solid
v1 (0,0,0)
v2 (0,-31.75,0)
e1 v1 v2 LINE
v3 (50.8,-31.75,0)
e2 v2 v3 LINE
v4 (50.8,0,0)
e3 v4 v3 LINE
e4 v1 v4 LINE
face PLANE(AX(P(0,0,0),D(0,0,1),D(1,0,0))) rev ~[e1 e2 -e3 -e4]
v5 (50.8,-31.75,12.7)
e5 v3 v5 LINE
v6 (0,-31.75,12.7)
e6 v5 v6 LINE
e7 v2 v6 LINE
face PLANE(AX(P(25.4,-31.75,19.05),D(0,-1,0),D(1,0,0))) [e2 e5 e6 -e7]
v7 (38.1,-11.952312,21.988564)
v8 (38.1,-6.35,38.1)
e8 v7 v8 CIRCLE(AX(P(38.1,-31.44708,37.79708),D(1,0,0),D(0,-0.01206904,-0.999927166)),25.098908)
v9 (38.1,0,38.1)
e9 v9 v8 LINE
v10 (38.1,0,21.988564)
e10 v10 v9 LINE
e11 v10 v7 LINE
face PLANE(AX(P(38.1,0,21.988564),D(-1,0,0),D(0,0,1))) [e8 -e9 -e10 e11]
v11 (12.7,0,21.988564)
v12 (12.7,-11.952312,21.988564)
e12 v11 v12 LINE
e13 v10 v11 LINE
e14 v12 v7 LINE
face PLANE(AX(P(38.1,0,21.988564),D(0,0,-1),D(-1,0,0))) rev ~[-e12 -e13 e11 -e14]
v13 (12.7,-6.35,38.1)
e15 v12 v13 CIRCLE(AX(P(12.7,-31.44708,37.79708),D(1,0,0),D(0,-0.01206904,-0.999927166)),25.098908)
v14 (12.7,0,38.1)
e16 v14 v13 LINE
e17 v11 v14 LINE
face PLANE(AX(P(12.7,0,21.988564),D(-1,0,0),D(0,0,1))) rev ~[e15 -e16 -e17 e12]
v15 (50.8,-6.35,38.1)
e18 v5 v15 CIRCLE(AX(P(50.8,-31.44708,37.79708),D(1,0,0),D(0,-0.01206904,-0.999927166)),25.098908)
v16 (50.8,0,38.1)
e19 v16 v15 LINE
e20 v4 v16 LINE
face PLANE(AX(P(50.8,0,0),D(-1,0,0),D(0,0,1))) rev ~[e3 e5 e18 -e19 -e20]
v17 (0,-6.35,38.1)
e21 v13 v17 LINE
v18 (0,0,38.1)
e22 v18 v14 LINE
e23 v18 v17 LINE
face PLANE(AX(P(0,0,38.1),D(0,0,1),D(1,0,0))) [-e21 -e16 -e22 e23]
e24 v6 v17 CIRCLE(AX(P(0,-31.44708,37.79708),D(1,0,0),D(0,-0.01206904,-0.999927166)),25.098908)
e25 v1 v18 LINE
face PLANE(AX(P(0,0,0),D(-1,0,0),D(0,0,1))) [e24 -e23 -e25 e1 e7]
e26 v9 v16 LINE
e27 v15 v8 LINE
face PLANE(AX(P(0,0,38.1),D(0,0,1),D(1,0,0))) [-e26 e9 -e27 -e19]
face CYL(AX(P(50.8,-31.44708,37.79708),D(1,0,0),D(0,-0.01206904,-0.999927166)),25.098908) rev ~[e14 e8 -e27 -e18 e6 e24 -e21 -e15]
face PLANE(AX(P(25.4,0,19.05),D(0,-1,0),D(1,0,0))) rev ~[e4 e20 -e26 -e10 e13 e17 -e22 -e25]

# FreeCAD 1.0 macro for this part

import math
import FreeCAD as App
import Part
import Sketcher
Q = App.Units.Quantity


def add_polygon(sketch, points):
    """Adds a closed chain of lines whose ends are joined by coincident constraints."""
    first, n = sketch.GeometryCount, len(points)
    for a, b in zip(points, points[1:] + points[:1]):
        sketch.addGeometry(Part.LineSegment(App.Vector(*a, 0), App.Vector(*b, 0)), False)
    for i in range(n):
        sketch.addConstraint(Sketcher.Constraint("Coincident", first + i, 2, first + (i + 1) % n, 1))

doc = App.newDocument("Part")
body = doc.addObject("PartDesign::Body", "Body")

# Sketch on XZ plane
sketch1 = doc.addObject("Sketcher::SketchObject", "Sketch")
body.addObject(sketch1)
sketch1.AttachmentSupport = (doc.XZ_Plane, [""])
sketch1.MapMode = "FlatFace"
add_polygon(sketch1, [(0, 38), (0, 0), (51, 0), (51, 38)])  # lines 0-3
sketch1.addConstraint([
    Sketcher.Constraint("Vertical", 0),
    Sketcher.Constraint("Horizontal", 1),
    Sketcher.Constraint("Vertical", 2),
    Sketcher.Constraint("Horizontal", 3),
    Sketcher.Constraint("Coincident", 0, 2, -1, 1),
    Sketcher.Constraint("DistanceX", 1, 1, 1, 2, Q("2 in")),
    Sketcher.Constraint("DistanceY", 0, 2, 0, 1, Q("1.5 in")),
])
pad1 = doc.addObject("PartDesign::Pad", "Pad")
body.addObject(pad1)
pad1.Profile = sketch1
pad1.Length = Q("1.25 in")

# Sketch on XZ plane
sketch2 = doc.addObject("Sketcher::SketchObject", "Sketch001")
body.addObject(sketch2)
sketch2.AttachmentSupport = (doc.XZ_Plane, [""])
sketch2.MapMode = "FlatFace"
add_polygon(sketch2, [(38, 38), (38, 22), (13, 22), (13, 38)])  # lines 0-3
sketch2.addConstraint([
    Sketcher.Constraint("Vertical", 0),
    Sketcher.Constraint("Horizontal", 1),
    Sketcher.Constraint("Vertical", 2),
    Sketcher.Constraint("Horizontal", 3),
    Sketcher.Constraint("DistanceX", 1, 2, 1, 1, Q("1 in")),
    Sketcher.Constraint("DistanceX", -1, 1, 0, 2, Q("1.5 in")),
    Sketcher.Constraint("DistanceY", -1, 1, 2, 2, Q("1.5 in")),
    Sketcher.Constraint("DistanceY", 0, 2, 0, 1, 16.111437),
])
pocket1 = doc.addObject("PartDesign::Pocket", "Pocket")
body.addObject(pocket1)
pocket1.Profile = sketch2
pocket1.Length = Q("0.5 in")
pocket1.Reversed = True

# Sketch on YZ plane
sketch3 = doc.addObject("Sketcher::SketchObject", "Sketch002")
body.addObject(sketch3)
sketch3.AttachmentSupport = (doc.YZ_Plane, [""])
sketch3.MapMode = "FlatFace"
sketch3.AttachmentOffset = App.Placement(App.Vector(0, 0, 2 * 25.4), App.Rotation())
sketch3.addGeometry([
    Part.LineSegment(App.Vector(-32, 38, 0), App.Vector(-32, 13, 0)),
    Part.ArcOfCircle(Part.Circle(App.Vector(-31, 38, 0), App.Vector(0, 0, 1), 25), math.radians(-91), math.radians(1)),
    Part.LineSegment(App.Vector(-6, 38, 0), App.Vector(-32, 38, 0)),
], False)
sketch3.addConstraint([
    Sketcher.Constraint("Coincident", 0, 2, 1, 1),
    Sketcher.Constraint("Coincident", 1, 2, 2, 1),
    Sketcher.Constraint("Coincident", 2, 2, 0, 1),
    Sketcher.Constraint("Vertical", 0),
    Sketcher.Constraint("Horizontal", 2),
    Sketcher.Constraint("Equal", 2, 0),
    Sketcher.Constraint("DistanceX", 2, 2, 2, 1, Q("1 in")),
    Sketcher.Constraint("DistanceY", -1, 1, 0, 2, Q("0.5 in")),
    Sketcher.Constraint("DistanceX", 0, 2, -1, 1, Q("1.25 in")),
    Sketcher.Constraint("Radius", 1, 25.098908),
])
pocket2 = doc.addObject("PartDesign::Pocket", "Pocket001")
body.addObject(pocket2)
pocket2.Profile = sketch3
pocket2.Type = "ThroughAll"

doc.recompute()
